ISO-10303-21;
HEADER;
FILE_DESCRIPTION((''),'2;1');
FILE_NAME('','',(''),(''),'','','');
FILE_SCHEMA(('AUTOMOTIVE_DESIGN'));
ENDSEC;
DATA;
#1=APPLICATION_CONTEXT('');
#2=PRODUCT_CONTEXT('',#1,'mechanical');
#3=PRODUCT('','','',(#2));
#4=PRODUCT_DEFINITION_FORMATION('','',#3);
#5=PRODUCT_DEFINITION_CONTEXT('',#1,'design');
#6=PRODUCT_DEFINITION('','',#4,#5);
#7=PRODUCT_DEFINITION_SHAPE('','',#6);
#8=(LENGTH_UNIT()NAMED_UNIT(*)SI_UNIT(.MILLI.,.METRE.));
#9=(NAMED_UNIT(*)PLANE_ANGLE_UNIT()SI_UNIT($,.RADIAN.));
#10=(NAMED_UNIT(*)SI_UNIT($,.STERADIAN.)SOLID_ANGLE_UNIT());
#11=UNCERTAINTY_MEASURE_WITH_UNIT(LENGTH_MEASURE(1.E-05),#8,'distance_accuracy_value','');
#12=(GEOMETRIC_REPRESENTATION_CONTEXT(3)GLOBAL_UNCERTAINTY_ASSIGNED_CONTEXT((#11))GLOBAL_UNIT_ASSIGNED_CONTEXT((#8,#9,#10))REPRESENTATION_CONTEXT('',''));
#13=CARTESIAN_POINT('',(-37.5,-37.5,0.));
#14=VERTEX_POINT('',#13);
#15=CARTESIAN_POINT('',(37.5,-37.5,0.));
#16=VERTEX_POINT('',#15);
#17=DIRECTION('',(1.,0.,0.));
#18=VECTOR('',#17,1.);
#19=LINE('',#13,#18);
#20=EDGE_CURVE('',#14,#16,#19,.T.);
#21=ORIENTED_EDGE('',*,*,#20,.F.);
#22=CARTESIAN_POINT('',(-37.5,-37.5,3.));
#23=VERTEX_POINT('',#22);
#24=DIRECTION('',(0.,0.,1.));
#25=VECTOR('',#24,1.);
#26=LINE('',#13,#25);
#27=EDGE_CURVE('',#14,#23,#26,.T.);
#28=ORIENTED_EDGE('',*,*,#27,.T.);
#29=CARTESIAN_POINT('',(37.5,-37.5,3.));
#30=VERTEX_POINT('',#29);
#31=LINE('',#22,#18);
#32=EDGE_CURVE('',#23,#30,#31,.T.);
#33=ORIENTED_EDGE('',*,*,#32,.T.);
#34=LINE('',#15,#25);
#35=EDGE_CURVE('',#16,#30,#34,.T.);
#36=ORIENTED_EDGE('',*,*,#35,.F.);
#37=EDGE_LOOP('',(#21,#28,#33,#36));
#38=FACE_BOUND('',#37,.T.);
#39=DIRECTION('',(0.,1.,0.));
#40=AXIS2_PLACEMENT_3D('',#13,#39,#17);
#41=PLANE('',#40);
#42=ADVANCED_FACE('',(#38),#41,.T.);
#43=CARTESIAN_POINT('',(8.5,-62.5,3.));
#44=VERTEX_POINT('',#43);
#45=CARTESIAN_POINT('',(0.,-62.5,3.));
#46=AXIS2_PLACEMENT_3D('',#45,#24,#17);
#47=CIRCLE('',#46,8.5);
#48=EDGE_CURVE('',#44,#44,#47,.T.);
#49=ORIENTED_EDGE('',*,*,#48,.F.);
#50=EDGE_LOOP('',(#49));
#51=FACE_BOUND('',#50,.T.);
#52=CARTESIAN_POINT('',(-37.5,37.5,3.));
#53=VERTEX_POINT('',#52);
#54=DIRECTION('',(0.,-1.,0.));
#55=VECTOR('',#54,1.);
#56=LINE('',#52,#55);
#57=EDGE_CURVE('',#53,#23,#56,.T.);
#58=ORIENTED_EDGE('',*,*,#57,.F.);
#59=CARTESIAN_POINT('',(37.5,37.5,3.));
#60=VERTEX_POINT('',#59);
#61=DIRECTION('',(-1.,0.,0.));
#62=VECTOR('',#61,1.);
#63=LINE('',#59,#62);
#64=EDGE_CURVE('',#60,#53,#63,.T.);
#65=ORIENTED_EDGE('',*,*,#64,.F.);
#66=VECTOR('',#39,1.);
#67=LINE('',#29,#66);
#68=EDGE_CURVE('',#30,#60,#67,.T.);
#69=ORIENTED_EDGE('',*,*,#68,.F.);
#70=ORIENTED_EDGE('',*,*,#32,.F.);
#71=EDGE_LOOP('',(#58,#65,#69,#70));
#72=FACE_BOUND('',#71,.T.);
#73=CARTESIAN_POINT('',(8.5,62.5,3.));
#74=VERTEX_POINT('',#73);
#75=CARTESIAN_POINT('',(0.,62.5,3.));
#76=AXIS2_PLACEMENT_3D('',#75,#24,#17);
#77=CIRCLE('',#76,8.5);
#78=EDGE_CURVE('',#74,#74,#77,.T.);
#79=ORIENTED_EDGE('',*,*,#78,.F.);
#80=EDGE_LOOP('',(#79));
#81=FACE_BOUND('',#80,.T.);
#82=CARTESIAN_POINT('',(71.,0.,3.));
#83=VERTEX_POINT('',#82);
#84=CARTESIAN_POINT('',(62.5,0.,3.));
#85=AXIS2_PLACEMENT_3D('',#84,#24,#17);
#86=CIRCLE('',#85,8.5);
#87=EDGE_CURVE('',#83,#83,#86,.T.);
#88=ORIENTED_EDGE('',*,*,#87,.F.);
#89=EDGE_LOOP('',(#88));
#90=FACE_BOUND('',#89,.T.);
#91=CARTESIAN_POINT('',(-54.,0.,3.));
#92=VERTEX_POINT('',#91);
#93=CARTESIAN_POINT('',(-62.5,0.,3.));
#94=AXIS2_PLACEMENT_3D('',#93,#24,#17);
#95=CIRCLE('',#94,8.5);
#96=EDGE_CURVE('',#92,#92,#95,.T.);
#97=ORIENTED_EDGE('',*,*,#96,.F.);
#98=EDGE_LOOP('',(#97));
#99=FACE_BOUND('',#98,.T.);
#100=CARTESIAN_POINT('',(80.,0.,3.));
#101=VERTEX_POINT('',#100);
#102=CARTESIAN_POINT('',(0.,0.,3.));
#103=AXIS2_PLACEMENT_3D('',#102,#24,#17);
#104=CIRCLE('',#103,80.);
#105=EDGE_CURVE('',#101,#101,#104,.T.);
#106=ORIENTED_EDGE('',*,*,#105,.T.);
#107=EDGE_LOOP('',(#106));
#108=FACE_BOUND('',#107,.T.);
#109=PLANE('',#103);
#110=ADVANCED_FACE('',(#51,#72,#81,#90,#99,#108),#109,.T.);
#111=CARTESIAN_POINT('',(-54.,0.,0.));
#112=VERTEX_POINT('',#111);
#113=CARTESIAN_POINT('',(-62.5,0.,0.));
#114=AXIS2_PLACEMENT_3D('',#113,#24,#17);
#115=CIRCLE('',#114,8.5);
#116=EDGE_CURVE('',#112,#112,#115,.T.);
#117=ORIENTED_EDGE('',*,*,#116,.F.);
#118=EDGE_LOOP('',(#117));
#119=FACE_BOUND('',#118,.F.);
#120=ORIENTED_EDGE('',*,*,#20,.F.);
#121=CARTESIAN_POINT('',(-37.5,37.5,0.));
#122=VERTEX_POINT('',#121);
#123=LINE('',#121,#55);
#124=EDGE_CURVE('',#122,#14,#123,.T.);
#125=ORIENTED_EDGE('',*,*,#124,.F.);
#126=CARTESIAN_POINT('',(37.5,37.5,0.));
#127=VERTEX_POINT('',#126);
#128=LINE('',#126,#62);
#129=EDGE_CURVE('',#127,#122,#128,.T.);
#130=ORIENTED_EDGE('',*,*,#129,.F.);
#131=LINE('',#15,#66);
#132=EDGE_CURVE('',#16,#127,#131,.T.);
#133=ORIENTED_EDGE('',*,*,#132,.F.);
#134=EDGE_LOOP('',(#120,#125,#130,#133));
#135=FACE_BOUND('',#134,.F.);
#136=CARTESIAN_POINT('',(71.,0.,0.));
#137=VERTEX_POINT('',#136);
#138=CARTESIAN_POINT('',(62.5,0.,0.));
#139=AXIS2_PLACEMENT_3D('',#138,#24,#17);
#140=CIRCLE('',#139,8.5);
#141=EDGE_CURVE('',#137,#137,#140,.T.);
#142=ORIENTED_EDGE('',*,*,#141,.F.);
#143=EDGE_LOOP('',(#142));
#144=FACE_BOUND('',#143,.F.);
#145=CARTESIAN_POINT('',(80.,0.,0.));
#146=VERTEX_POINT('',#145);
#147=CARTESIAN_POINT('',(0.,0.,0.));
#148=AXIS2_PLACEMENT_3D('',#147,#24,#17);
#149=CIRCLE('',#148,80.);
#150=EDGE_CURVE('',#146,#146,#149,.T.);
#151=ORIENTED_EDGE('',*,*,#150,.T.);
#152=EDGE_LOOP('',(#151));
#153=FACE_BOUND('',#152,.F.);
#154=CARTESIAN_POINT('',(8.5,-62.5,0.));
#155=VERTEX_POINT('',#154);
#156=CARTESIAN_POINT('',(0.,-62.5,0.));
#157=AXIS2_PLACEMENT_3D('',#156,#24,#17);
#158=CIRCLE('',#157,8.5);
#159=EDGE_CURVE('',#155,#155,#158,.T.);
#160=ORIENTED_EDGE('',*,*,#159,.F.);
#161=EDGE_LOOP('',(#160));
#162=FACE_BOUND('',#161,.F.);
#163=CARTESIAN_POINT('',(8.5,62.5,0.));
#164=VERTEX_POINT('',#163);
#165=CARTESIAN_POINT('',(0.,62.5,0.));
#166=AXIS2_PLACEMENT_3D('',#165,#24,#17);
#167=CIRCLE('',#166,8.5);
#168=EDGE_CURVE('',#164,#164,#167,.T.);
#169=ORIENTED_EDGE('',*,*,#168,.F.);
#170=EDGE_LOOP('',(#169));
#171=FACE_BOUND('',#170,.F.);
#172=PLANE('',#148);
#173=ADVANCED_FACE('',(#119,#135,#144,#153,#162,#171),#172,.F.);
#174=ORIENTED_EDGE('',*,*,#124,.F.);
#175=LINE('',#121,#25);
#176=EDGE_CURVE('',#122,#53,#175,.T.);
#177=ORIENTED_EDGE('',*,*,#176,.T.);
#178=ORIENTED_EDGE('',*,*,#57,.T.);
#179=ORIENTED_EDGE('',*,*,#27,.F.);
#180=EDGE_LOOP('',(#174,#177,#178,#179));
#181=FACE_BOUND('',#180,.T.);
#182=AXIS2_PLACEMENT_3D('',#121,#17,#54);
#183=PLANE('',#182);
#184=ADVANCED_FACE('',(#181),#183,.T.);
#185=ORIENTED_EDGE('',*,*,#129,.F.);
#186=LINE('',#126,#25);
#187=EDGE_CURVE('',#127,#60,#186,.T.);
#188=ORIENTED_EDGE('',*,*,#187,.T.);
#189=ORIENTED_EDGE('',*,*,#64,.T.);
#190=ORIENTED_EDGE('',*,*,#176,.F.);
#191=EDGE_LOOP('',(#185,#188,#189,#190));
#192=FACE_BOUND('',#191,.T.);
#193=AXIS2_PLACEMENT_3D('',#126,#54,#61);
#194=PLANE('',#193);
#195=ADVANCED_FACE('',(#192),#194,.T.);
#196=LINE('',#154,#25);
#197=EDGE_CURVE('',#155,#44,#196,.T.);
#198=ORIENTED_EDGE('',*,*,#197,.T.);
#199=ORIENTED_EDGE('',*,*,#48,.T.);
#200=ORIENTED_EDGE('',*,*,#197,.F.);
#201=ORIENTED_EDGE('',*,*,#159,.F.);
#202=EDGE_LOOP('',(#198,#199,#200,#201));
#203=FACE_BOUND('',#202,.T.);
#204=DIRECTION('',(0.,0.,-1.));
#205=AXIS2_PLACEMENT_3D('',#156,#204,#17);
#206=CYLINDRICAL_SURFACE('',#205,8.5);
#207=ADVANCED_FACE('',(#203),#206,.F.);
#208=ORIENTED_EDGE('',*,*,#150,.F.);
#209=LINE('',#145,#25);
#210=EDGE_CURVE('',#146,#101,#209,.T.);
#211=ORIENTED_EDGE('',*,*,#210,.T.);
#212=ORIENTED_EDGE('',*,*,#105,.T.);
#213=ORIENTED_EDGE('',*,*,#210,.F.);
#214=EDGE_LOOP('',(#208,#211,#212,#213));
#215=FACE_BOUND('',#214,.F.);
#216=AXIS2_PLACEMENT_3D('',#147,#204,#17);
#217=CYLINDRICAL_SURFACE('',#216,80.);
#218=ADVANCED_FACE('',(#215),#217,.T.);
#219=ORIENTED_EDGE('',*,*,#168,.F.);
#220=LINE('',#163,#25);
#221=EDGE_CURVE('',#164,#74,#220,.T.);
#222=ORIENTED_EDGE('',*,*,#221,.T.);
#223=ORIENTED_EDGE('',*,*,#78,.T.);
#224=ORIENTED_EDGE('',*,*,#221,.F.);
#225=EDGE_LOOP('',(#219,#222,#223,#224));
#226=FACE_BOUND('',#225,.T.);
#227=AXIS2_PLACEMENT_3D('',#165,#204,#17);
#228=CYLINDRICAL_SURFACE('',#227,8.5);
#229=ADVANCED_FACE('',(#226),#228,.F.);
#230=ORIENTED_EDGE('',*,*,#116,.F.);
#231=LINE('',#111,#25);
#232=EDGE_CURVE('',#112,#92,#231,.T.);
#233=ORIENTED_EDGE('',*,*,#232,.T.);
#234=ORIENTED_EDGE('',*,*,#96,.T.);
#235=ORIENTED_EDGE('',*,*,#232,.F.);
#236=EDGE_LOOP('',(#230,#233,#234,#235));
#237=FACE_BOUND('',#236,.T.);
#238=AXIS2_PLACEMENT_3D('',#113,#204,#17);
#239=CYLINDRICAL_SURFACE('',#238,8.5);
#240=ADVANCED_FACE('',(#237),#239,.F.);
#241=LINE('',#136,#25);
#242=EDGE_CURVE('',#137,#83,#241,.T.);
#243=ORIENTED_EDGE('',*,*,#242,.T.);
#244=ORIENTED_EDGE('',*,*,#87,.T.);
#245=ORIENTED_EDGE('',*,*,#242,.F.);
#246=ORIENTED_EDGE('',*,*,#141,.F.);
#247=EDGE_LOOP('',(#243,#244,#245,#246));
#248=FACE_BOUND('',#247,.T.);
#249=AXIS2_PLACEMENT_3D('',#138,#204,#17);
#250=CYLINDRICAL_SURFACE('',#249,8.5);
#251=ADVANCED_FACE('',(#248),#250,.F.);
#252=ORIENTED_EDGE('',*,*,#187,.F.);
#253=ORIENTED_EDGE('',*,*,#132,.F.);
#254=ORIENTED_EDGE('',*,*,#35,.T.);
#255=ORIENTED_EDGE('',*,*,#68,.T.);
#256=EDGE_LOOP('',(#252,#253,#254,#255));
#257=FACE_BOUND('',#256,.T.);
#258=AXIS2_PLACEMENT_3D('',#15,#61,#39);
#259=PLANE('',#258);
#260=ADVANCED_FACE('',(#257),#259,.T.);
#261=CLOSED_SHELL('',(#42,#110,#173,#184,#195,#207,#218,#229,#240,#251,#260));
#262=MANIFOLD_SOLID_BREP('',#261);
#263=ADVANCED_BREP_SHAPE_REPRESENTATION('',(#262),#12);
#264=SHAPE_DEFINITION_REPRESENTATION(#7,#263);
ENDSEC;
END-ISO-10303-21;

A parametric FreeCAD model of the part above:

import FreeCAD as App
import Part
import Sketcher
Q = App.Units.Quantity

doc = App.newDocument("Part")
body = doc.addObject("PartDesign::Body", "Body")

# Sketch on XY plane
sketch1 = doc.addObject("Sketcher::SketchObject", "Sketch")
body.addObject(sketch1)
sketch1.AttachmentSupport = (doc.XY_Plane, [""])
sketch1.MapMode = "FlatFace"
sketch1.addGeometry([
    Part.Circle(App.Vector(0, 0, 0), App.Vector(0, 0, 1), 80),  # 0
    Part.Circle(App.Vector(0, -62, 0), App.Vector(0, 0, 1), 8),  # 1
    Part.Circle(App.Vector(-62, 0, 0), App.Vector(0, 0, 1), 8),  # 2
    Part.LineSegment(App.Vector(-38, 38, 0), App.Vector(38, 38, 0)),  # 3
    Part.LineSegment(App.Vector(38, 38, 0), App.Vector(38, -38, 0)),  # 4
    Part.LineSegment(App.Vector(38, -38, 0), App.Vector(-38, -38, 0)),  # 5
    Part.LineSegment(App.Vector(-38, -38, 0), App.Vector(-38, 38, 0)),  # 6
    Part.Circle(App.Vector(62, 0, 0), App.Vector(0, 0, 1), 8),  # 7
    Part.Circle(App.Vector(0, 62, 0), App.Vector(0, 0, 1), 8),  # 8
], False)
sketch1.addConstraint([
    Sketcher.Constraint("Coincident", 3, 2, 4, 1),
    Sketcher.Constraint("Coincident", 4, 2, 5, 1),
    Sketcher.Constraint("Coincident", 5, 2, 6, 1),
    Sketcher.Constraint("Coincident", 6, 2, 3, 1),
    Sketcher.Constraint("Horizontal", 3),
    Sketcher.Constraint("Vertical", 4),
    Sketcher.Constraint("Horizontal", 5),
    Sketcher.Constraint("Vertical", 6),
    Sketcher.Constraint("Coincident", 0, 3, -1, 1),
    Sketcher.Constraint("Equal", 1, 2),
    Sketcher.Constraint("Equal", 2, 7),
    Sketcher.Constraint("Equal", 7, 8),
    Sketcher.Constraint("Symmetric", 2, 3, 7, 3, -1, 1),
    Sketcher.Constraint("Symmetric", 1, 3, 8, 3, -1, 1),
    Sketcher.Constraint("Symmetric", 3, 2, 5, 2, -1, 1),
    Sketcher.Constraint("PointOnObject", 1, 3, -2),
    Sketcher.Constraint("PointOnObject", 2, 3, -1),
    Sketcher.Constraint("Equal", 5, 4),
    Sketcher.Constraint("Diameter", 0, Q("160 mm")),
    Sketcher.Constraint("Diameter", 1, Q("17 mm")),
    Sketcher.Constraint("DistanceX", 3, 1, 3, 2, Q("75 mm")),
    Sketcher.Constraint("DistanceX", 2, 3, 7, 3, Q("125 mm")),
    Sketcher.Constraint("DistanceY", 1, 3, 8, 3, Q("125 mm")),
])
pad1 = doc.addObject("PartDesign::Pad", "Pad")
body.addObject(pad1)
pad1.Profile = sketch1
pad1.Length = 3

doc.recompute()
